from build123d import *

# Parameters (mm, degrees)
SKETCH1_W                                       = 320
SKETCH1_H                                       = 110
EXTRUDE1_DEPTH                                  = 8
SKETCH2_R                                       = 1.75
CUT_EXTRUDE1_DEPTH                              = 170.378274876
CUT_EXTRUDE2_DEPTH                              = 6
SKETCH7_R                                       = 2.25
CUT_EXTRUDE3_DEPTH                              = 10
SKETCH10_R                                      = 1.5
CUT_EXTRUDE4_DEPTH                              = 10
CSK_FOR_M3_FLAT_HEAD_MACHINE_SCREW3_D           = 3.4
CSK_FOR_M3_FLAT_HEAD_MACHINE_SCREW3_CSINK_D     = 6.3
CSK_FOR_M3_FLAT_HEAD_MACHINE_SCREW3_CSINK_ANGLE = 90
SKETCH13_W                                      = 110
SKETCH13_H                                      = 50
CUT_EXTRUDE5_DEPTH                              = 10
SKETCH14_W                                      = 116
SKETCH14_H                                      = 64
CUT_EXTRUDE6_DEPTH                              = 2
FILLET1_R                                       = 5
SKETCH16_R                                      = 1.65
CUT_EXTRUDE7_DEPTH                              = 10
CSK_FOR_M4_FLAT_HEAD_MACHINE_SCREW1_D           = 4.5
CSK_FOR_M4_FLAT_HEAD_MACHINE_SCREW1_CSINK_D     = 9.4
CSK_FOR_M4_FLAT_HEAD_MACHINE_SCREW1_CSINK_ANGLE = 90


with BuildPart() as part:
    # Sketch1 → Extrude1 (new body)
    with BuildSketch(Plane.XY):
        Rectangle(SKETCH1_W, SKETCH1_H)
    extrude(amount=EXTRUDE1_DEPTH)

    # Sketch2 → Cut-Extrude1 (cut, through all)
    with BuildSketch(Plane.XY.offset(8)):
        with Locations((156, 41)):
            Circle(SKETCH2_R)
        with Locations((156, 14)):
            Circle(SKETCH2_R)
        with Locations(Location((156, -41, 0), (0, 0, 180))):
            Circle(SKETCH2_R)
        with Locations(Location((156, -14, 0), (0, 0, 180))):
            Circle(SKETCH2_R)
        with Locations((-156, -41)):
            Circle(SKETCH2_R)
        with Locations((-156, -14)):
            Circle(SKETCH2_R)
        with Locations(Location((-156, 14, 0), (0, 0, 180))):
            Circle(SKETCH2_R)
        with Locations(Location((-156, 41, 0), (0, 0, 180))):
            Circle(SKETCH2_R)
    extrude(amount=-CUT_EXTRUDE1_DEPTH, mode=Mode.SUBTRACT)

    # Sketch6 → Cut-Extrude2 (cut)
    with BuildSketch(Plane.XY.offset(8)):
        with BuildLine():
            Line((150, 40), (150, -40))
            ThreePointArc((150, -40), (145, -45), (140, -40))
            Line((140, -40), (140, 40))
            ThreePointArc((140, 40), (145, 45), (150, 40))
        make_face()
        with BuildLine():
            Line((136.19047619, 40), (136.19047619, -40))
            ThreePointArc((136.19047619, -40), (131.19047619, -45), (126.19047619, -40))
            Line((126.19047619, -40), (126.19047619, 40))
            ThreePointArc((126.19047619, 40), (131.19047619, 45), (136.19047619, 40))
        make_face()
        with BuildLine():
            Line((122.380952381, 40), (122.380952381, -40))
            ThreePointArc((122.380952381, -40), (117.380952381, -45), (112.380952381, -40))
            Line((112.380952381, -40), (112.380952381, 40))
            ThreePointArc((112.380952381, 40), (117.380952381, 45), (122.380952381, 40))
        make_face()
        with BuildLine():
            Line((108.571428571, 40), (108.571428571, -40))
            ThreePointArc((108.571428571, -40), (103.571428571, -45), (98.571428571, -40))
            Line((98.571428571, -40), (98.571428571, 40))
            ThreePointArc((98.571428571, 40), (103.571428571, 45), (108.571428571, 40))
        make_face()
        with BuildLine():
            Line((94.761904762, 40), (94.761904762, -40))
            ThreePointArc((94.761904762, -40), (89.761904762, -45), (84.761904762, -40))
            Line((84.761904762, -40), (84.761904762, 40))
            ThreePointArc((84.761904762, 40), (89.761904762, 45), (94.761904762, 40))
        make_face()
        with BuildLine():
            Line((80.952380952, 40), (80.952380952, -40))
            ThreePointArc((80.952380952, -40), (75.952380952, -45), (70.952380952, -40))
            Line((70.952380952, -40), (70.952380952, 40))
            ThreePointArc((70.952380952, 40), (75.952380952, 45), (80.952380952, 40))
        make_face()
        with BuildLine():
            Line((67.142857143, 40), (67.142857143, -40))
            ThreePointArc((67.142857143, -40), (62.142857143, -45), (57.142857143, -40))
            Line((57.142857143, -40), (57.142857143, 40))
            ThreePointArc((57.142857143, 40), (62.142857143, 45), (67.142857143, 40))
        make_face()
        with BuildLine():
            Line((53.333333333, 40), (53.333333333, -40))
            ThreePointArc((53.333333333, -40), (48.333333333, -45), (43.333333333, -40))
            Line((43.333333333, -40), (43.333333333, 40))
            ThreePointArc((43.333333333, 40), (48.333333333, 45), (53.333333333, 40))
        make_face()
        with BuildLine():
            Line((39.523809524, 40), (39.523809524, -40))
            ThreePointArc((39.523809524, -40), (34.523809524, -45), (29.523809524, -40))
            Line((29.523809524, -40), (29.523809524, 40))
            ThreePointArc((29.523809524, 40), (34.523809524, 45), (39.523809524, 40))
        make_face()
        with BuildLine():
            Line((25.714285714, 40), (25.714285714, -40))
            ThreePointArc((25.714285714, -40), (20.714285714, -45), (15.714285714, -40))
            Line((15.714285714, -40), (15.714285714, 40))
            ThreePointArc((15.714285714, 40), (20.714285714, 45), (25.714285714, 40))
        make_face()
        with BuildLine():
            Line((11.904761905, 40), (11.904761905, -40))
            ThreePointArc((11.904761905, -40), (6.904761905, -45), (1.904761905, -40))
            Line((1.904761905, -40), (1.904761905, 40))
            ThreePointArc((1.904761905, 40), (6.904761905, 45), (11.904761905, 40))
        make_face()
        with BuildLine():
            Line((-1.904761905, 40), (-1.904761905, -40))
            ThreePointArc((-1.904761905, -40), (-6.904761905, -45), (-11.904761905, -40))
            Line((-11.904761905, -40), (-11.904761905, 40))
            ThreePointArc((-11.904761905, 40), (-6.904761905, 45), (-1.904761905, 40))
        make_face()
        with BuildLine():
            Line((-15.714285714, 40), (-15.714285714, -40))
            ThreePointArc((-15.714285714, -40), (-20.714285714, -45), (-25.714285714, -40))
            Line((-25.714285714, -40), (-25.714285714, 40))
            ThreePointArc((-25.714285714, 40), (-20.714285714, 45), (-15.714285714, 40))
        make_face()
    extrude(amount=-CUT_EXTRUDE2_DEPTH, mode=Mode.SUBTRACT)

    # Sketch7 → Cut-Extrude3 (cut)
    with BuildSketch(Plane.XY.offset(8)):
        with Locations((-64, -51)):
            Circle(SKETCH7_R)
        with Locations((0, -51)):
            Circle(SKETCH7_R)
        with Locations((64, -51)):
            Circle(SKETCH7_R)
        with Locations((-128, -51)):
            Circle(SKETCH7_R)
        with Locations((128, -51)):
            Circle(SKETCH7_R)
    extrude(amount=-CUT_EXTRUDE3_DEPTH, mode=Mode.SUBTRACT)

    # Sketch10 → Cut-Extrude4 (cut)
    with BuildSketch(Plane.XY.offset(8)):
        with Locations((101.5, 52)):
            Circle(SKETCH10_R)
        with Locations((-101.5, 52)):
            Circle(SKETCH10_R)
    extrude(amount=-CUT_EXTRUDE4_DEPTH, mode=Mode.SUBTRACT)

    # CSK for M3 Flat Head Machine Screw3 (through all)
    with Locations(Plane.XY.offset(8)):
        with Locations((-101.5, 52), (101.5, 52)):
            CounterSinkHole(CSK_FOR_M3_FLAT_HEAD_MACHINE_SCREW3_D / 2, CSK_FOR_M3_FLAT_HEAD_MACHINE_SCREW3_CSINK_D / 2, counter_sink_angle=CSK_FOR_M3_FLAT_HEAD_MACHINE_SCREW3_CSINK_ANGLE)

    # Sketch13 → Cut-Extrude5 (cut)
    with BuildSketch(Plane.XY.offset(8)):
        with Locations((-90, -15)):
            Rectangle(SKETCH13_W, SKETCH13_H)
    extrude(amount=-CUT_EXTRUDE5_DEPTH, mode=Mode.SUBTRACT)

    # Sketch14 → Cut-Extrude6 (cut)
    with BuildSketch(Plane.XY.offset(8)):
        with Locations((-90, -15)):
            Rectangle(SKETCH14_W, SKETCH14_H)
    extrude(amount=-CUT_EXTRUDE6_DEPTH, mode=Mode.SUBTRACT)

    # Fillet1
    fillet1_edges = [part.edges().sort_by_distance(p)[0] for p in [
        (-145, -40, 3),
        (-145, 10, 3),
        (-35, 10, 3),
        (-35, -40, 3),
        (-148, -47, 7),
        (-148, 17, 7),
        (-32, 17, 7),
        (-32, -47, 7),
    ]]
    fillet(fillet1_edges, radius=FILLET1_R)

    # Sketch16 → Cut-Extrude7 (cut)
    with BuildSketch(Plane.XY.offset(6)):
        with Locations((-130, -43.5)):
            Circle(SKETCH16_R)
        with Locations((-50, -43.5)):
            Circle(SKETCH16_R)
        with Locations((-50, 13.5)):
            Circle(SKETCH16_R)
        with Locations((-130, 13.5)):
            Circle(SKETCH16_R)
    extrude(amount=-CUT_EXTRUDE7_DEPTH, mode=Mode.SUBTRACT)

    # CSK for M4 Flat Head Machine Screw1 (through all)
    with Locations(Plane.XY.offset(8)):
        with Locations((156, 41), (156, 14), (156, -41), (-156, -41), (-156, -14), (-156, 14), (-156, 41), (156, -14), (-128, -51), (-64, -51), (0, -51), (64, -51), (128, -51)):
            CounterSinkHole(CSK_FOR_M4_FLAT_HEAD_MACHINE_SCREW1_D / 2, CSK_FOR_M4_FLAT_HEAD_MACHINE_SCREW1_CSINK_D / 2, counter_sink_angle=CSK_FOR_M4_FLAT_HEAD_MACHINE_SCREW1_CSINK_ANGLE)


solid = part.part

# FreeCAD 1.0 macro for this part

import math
import FreeCAD as App
import Part
import Sketcher

V = App.Vector
Q = App.Units.Quantity


def edges_at(feature, points):
    """Names of the edges that pass closest to the given points."""
    edges = feature.Shape.Edges
    near = lambda p: min(range(len(edges)), key=lambda i: edges[i].distToShape(Part.Vertex(*p))[0])
    return sorted({f"Edge{near(p) + 1}" for p in points})

doc = App.newDocument("Part")
body = doc.addObject("PartDesign::Body", "Body")

sketch1 = body.newObject("Sketcher::SketchObject", "Sketch")
sketch1.AttachmentSupport = (doc.getObject("XY_Plane"), [""])
sketch1.MapMode = "FlatFace"
sketch1.addGeometry([
    Part.LineSegment(V(-160, 55, 0), V(-160, -55, 0)),
    Part.LineSegment(V(-160, -55, 0), V(160, -55, 0)),
    Part.LineSegment(V(160, -55, 0), V(160, 55, 0)),
    Part.LineSegment(V(160, 55, 0), V(-160, 55, 0)),
], False)
sketch1.addConstraint([
    Sketcher.Constraint("Coincident", 0, 2, 1, 1),
    Sketcher.Constraint("Coincident", 1, 2, 2, 1),
    Sketcher.Constraint("Coincident", 2, 2, 3, 1),
    Sketcher.Constraint("Coincident", 3, 2, 0, 1),
    Sketcher.Constraint("Vertical", 0),
    Sketcher.Constraint("Horizontal", 1),
    Sketcher.Constraint("Vertical", 2),
    Sketcher.Constraint("Horizontal", 3),
    Sketcher.Constraint("Symmetric", 0, 2, 2, 2, -1, 1),
    Sketcher.Constraint("DistanceX", 1, 1, 1, 2, Q("320 mm")),
    Sketcher.Constraint("DistanceY", 0, 2, 0, 1, Q("110 mm")),
])
pad1 = body.newObject("PartDesign::Pad", "Pad")
pad1.Profile = sketch1
pad1.Length = 8

sketch2 = body.newObject("Sketcher::SketchObject", "Sketch001")
sketch2.AttachmentSupport = (doc.getObject("XY_Plane"), [""])
sketch2.MapMode = "FlatFace"
sketch2.AttachmentOffset = App.Placement(V(0, 0, 8), App.Rotation())
sketch2.addGeometry([
    Part.Circle(V(156, 41, 0), V(0, 0, 1), 1.8),
    Part.Circle(V(156, 14, 0), V(0, 0, 1), 1.8),
    Part.Circle(V(156, -41, 0), V(0, 0, 1), 1.8),
    Part.Circle(V(156, -14, 0), V(0, 0, 1), 1.8),
    Part.Circle(V(-156, -41, 0), V(0, 0, 1), 1.8),
    Part.Circle(V(-156, -14, 0), V(0, 0, 1), 1.8),
    Part.Circle(V(-156, 14, 0), V(0, 0, 1), 1.8),
    Part.Circle(V(-156, 41, 0), V(0, 0, 1), 1.8),
], False)
sketch2.addConstraint([
    Sketcher.Constraint("Equal", 0, 1),
    Sketcher.Constraint("Equal", 1, 2),
    Sketcher.Constraint("Equal", 2, 3),
    Sketcher.Constraint("Equal", 3, 4),
    Sketcher.Constraint("Equal", 4, 5),
    Sketcher.Constraint("Equal", 5, 6),
    Sketcher.Constraint("Equal", 6, 7),
    Sketcher.Constraint("Symmetric", 0, 3, 4, 3, -1, 1),
    Sketcher.Constraint("Symmetric", 1, 3, 5, 3, -1, 1),
    Sketcher.Constraint("Symmetric", 3, 3, 6, 3, -1, 1),
    Sketcher.Constraint("Symmetric", 2, 3, 7, 3, -1, 1),
    Sketcher.Constraint("Symmetric", 2, 3, 4, 3, -2),
    Sketcher.Constraint("Symmetric", 3, 3, 5, 3, -2),
    Sketcher.Constraint("Vertical", 0, 3, 1, 3),
    Sketcher.Constraint("Diameter", 0, Q("3.5 mm")),
    Sketcher.Constraint("DistanceX", -1, 1, 0, 3, Q("156 mm")),
    Sketcher.Constraint("DistanceY", -1, 1, 0, 3, Q("41 mm")),
    Sketcher.Constraint("DistanceY", -1, 1, 1, 3, Q("14 mm")),
])
pocket1 = body.newObject("PartDesign::Pocket", "Pocket")
pocket1.Profile = sketch2
pocket1.Type = "ThroughAll"

sketch3 = body.newObject("Sketcher::SketchObject", "Sketch002")
sketch3.AttachmentSupport = (doc.getObject("XY_Plane"), [""])
sketch3.MapMode = "FlatFace"
sketch3.AttachmentOffset = App.Placement(V(0, 0, 8), App.Rotation())
sketch3.addGeometry([
    Part.LineSegment(V(150, -40, 0), V(150, 40, 0)),
    Part.ArcOfCircle(Part.Circle(V(145, 40, 0), V(0, 0, 1), 5), math.radians(0), math.radians(180)),
    Part.LineSegment(V(140, 40, 0), V(140, -40, 0)),
    Part.ArcOfCircle(Part.Circle(V(145, -40, 0), V(0, 0, 1), 5), math.radians(180), math.radians(360)),
    Part.LineSegment(V(136, -40, 0), V(136, 40, 0)),
    Part.ArcOfCircle(Part.Circle(V(131, 40, 0), V(0, 0, 1), 5), math.radians(0), math.radians(180)),
    Part.LineSegment(V(126, 40, 0), V(126, -40, 0)),
    Part.ArcOfCircle(Part.Circle(V(131, -40, 0), V(0, 0, 1), 5), math.radians(180), math.radians(360)),
    Part.LineSegment(V(122, -40, 0), V(122, 40, 0)),
    Part.ArcOfCircle(Part.Circle(V(117, 40, 0), V(0, 0, 1), 5), math.radians(0), math.radians(180)),
    Part.LineSegment(V(112, 40, 0), V(112, -40, 0)),
    Part.ArcOfCircle(Part.Circle(V(117, -40, 0), V(0, 0, 1), 5), math.radians(180), math.radians(360)),
    Part.LineSegment(V(109, -40, 0), V(109, 40, 0)),
    Part.ArcOfCircle(Part.Circle(V(104, 40, 0), V(0, 0, 1), 5), math.radians(0), math.radians(180)),
    Part.LineSegment(V(99, 40, 0), V(99, -40, 0)),
    Part.ArcOfCircle(Part.Circle(V(104, -40, 0), V(0, 0, 1), 5), math.radians(180), math.radians(360)),
    Part.LineSegment(V(95, -40, 0), V(95, 40, 0)),
    Part.ArcOfCircle(Part.Circle(V(90, 40, 0), V(0, 0, 1), 5), math.radians(0), math.radians(180)),
    Part.LineSegment(V(85, 40, 0), V(85, -40, 0)),
    Part.ArcOfCircle(Part.Circle(V(90, -40, 0), V(0, 0, 1), 5), math.radians(180), math.radians(360)),
    Part.LineSegment(V(81, -40, 0), V(81, 40, 0)),
    Part.ArcOfCircle(Part.Circle(V(76, 40, 0), V(0, 0, 1), 5), math.radians(0), math.radians(180)),
    Part.LineSegment(V(71, 40, 0), V(71, -40, 0)),
    Part.ArcOfCircle(Part.Circle(V(76, -40, 0), V(0, 0, 1), 5), math.radians(180), math.radians(360)),
    Part.LineSegment(V(67, -40, 0), V(67, 40, 0)),
    Part.ArcOfCircle(Part.Circle(V(62, 40, 0), V(0, 0, 1), 5), math.radians(0), math.radians(180)),
    Part.LineSegment(V(57, 40, 0), V(57, -40, 0)),
    Part.ArcOfCircle(Part.Circle(V(62, -40, 0), V(0, 0, 1), 5), math.radians(180), math.radians(360)),
    Part.LineSegment(V(53, -40, 0), V(53, 40, 0)),
    Part.ArcOfCircle(Part.Circle(V(48, 40, 0), V(0, 0, 1), 5), math.radians(0), math.radians(180)),
    Part.LineSegment(V(43, 40, 0), V(43, -40, 0)),
    Part.ArcOfCircle(Part.Circle(V(48, -40, 0), V(0, 0, 1), 5), math.radians(180), math.radians(360)),
    Part.LineSegment(V(40, -40, 0), V(40, 40, 0)),
    Part.ArcOfCircle(Part.Circle(V(35, 40, 0), V(0, 0, 1), 5), math.radians(0), math.radians(180)),
    Part.LineSegment(V(30, 40, 0), V(30, -40, 0)),
    Part.ArcOfCircle(Part.Circle(V(35, -40, 0), V(0, 0, 1), 5), math.radians(180), math.radians(360)),
    Part.LineSegment(V(26, -40, 0), V(26, 40, 0)),
    Part.ArcOfCircle(Part.Circle(V(21, 40, 0), V(0, 0, 1), 5), math.radians(0), math.radians(180)),
    Part.LineSegment(V(16, 40, 0), V(16, -40, 0)),
    Part.ArcOfCircle(Part.Circle(V(21, -40, 0), V(0, 0, 1), 5), math.radians(180), math.radians(360)),
    Part.LineSegment(V(12, -40, 0), V(12, 40, 0)),
    Part.ArcOfCircle(Part.Circle(V(7, 40, 0), V(0, 0, 1), 5), math.radians(0), math.radians(180)),
    Part.LineSegment(V(2, 40, 0), V(2, -40, 0)),
    Part.ArcOfCircle(Part.Circle(V(7, -40, 0), V(0, 0, 1), 5), math.radians(180), math.radians(360)),
    Part.LineSegment(V(-2, -40, 0), V(-2, 40, 0)),
    Part.ArcOfCircle(Part.Circle(V(-7, 40, 0), V(0, 0, 1), 5), math.radians(0), math.radians(180)),
    Part.LineSegment(V(-12, 40, 0), V(-12, -40, 0)),
    Part.ArcOfCircle(Part.Circle(V(-7, -40, 0), V(0, 0, 1), 5), math.radians(180), math.radians(360)),
    Part.LineSegment(V(-16, -40, 0), V(-16, 40, 0)),
    Part.ArcOfCircle(Part.Circle(V(-21, 40, 0), V(0, 0, 1), 5), math.radians(0), math.radians(180)),
    Part.LineSegment(V(-26, 40, 0), V(-26, -40, 0)),
    Part.ArcOfCircle(Part.Circle(V(-21, -40, 0), V(0, 0, 1), 5), math.radians(180), math.radians(360)),
], False)
sketch3.addConstraint([
    Sketcher.Constraint("Tangent", 0, 2, 1, 1),
    Sketcher.Constraint("Tangent", 1, 2, 2, 1),
    Sketcher.Constraint("Tangent", 2, 2, 3, 1),
    Sketcher.Constraint("Tangent", 3, 2, 0, 1),
    Sketcher.Constraint("Tangent", 4, 2, 5, 1),
    Sketcher.Constraint("Tangent", 5, 2, 6, 1),
    Sketcher.Constraint("Tangent", 6, 2, 7, 1),
    Sketcher.Constraint("Tangent", 7, 2, 4, 1),
    Sketcher.Constraint("Tangent", 8, 2, 9, 1),
    Sketcher.Constraint("Tangent", 9, 2, 10, 1),
    Sketcher.Constraint("Tangent", 10, 2, 11, 1),
    Sketcher.Constraint("Tangent", 11, 2, 8, 1),
    Sketcher.Constraint("Tangent", 12, 2, 13, 1),
    Sketcher.Constraint("Tangent", 13, 2, 14, 1),
    Sketcher.Constraint("Tangent", 14, 2, 15, 1),
    Sketcher.Constraint("Tangent", 15, 2, 12, 1),
    Sketcher.Constraint("Tangent", 16, 2, 17, 1),
    Sketcher.Constraint("Tangent", 17, 2, 18, 1),
    Sketcher.Constraint("Tangent", 18, 2, 19, 1),
    Sketcher.Constraint("Tangent", 19, 2, 16, 1),
    Sketcher.Constraint("Tangent", 20, 2, 21, 1),
    Sketcher.Constraint("Tangent", 21, 2, 22, 1),
    Sketcher.Constraint("Tangent", 22, 2, 23, 1),
    Sketcher.Constraint("Tangent", 23, 2, 20, 1),
    Sketcher.Constraint("Tangent", 24, 2, 25, 1),
    Sketcher.Constraint("Tangent", 25, 2, 26, 1),
    Sketcher.Constraint("Tangent", 26, 2, 27, 1),
    Sketcher.Constraint("Tangent", 27, 2, 24, 1),
    Sketcher.Constraint("Tangent", 28, 2, 29, 1),
    Sketcher.Constraint("Tangent", 29, 2, 30, 1),
    Sketcher.Constraint("Tangent", 30, 2, 31, 1),
    Sketcher.Constraint("Tangent", 31, 2, 28, 1),
    Sketcher.Constraint("Tangent", 32, 2, 33, 1),
    Sketcher.Constraint("Tangent", 33, 2, 34, 1),
    Sketcher.Constraint("Tangent", 34, 2, 35, 1),
    Sketcher.Constraint("Tangent", 35, 2, 32, 1),
    Sketcher.Constraint("Tangent", 36, 2, 37, 1),
    Sketcher.Constraint("Tangent", 37, 2, 38, 1),
    Sketcher.Constraint("Tangent", 38, 2, 39, 1),
    Sketcher.Constraint("Tangent", 39, 2, 36, 1),
    Sketcher.Constraint("Tangent", 40, 2, 41, 1),
    Sketcher.Constraint("Tangent", 41, 2, 42, 1),
    Sketcher.Constraint("Tangent", 42, 2, 43, 1),
    Sketcher.Constraint("Tangent", 43, 2, 40, 1),
    Sketcher.Constraint("Tangent", 44, 2, 45, 1),
    Sketcher.Constraint("Tangent", 45, 2, 46, 1),
    Sketcher.Constraint("Tangent", 46, 2, 47, 1),
    Sketcher.Constraint("Tangent", 47, 2, 44, 1),
    Sketcher.Constraint("Tangent", 48, 2, 49, 1),
    Sketcher.Constraint("Tangent", 49, 2, 50, 1),
    Sketcher.Constraint("Tangent", 50, 2, 51, 1),
    Sketcher.Constraint("Tangent", 51, 2, 48, 1),
    Sketcher.Constraint("Vertical", 0),
    Sketcher.Constraint("Vertical", 2),
    Sketcher.Constraint("Vertical", 4),
    Sketcher.Constraint("Vertical", 6),
    Sketcher.Constraint("Vertical", 8),
    Sketcher.Constraint("Vertical", 10),
    Sketcher.Constraint("Vertical", 12),
    Sketcher.Constraint("Vertical", 14),
    Sketcher.Constraint("Vertical", 16),
    Sketcher.Constraint("Vertical", 18),
    Sketcher.Constraint("Vertical", 20),
    Sketcher.Constraint("Vertical", 22),
    Sketcher.Constraint("Vertical", 24),
    Sketcher.Constraint("Vertical", 26),
    Sketcher.Constraint("Vertical", 28),
    Sketcher.Constraint("Vertical", 30),
    Sketcher.Constraint("Vertical", 32),
    Sketcher.Constraint("Vertical", 34),
    Sketcher.Constraint("Vertical", 36),
    Sketcher.Constraint("Vertical", 38),
    Sketcher.Constraint("Vertical", 40),
    Sketcher.Constraint("Vertical", 42),
    Sketcher.Constraint("Vertical", 44),
    Sketcher.Constraint("Vertical", 46),
    Sketcher.Constraint("Vertical", 48),
    Sketcher.Constraint("Vertical", 50),
    Sketcher.Constraint("Equal", 3, 5),
    Sketcher.Constraint("Equal", 7, 9),
    Sketcher.Constraint("Equal", 11, 13),
    Sketcher.Constraint("Equal", 15, 17),
    Sketcher.Constraint("Equal", 19, 21),
    Sketcher.Constraint("Equal", 23, 25),
    Sketcher.Constraint("Equal", 27, 29),
    Sketcher.Constraint("Equal", 31, 33),
    Sketcher.Constraint("Equal", 35, 37),
    Sketcher.Constraint("Equal", 39, 41),
    Sketcher.Constraint("Equal", 43, 45),
    Sketcher.Constraint("Equal", 47, 49),
    Sketcher.Constraint("Symmetric", 43, 3, 45, 3, -1, 1),
    Sketcher.Constraint("Symmetric", 39, 3, 49, 3, -1, 1),
    Sketcher.Constraint("Horizontal", 1, 3, 5, 3),
    Sketcher.Constraint("Horizontal", 3, 3, 7, 3),
    Sketcher.Constraint("Horizontal", 5, 3, 9, 3),
    Sketcher.Constraint("Horizontal", 7, 3, 11, 3),
    Sketcher.Constraint("Horizontal", 9, 3, 13, 3),
    Sketcher.Constraint("Horizontal", 11, 3, 15, 3),
    Sketcher.Constraint("Horizontal", 13, 3, 17, 3),
    Sketcher.Constraint("Horizontal", 15, 3, 19, 3),
    Sketcher.Constraint("Horizontal", 17, 3, 21, 3),
    Sketcher.Constraint("Horizontal", 19, 3, 23, 3),
    Sketcher.Constraint("Horizontal", 21, 3, 25, 3),
    Sketcher.Constraint("Horizontal", 23, 3, 27, 3),
    Sketcher.Constraint("Horizontal", 25, 3, 29, 3),
    Sketcher.Constraint("Horizontal", 27, 3, 31, 3),
    Sketcher.Constraint("Horizontal", 29, 3, 33, 3),
    Sketcher.Constraint("Horizontal", 31, 3, 35, 3),
    Sketcher.Constraint("Horizontal", 33, 3, 37, 3),
    Sketcher.Constraint("Horizontal", 35, 3, 39, 3),
    Sketcher.Constraint("Horizontal", 37, 3, 41, 3),
    Sketcher.Constraint("Horizontal", 39, 3, 43, 3),
    Sketcher.Constraint("Horizontal", 41, 3, 45, 3),
    Sketcher.Constraint("Horizontal", 43, 3, 47, 3),
    Sketcher.Constraint("Horizontal", 47, 3, 51, 3),
    Sketcher.Constraint("Radius", 1, Q("5 mm")),
    Sketcher.Constraint("DistanceY", 0, 1, 0, 2, Q("80 mm")),
    Sketcher.Constraint("DistanceX", -1, 1, 1, 3, Q("145 mm")),
    Sketcher.Constraint("DistanceX", -1, 1, 13, 3, Q("103.571429 mm")),
    Sketcher.Constraint("DistanceX", -1, 1, 21, 3, Q("75.952381 mm")),
    Sketcher.Constraint("DistanceX", -1, 1, 33, 3, Q("34.52381 mm")),
    Sketcher.Constraint("DistanceX", -1, 1, 41, 3, Q("6.904762 mm")),
    Sketcher.Constraint("DistanceX", -1, 1, 5, 3, Q("131.190476 mm")),
    Sketcher.Constraint("DistanceX", -1, 1, 9, 3, Q("117.380952 mm")),
    Sketcher.Constraint("DistanceX", -1, 1, 17, 3, Q("89.761905 mm")),
    Sketcher.Constraint("DistanceX", -1, 1, 25, 3, Q("62.142857 mm")),
    Sketcher.Constraint("DistanceX", -1, 1, 29, 3, Q("48.333333 mm")),
    Sketcher.Constraint("DistanceX", -1, 1, 37, 3, Q("20.714286 mm")),
])
pocket2 = body.newObject("PartDesign::Pocket", "Pocket001")
pocket2.Profile = sketch3
pocket2.Length = 6

sketch4 = body.newObject("Sketcher::SketchObject", "Sketch003")
sketch4.AttachmentSupport = (doc.getObject("XY_Plane"), [""])
sketch4.MapMode = "FlatFace"
sketch4.AttachmentOffset = App.Placement(V(0, 0, 8), App.Rotation())
sketch4.addGeometry([
    Part.Circle(V(-64, -51, 0), V(0, 0, 1), 2.2),
    Part.Circle(V(0, -51, 0), V(0, 0, 1), 2.2),
    Part.Circle(V(64, -51, 0), V(0, 0, 1), 2.2),
    Part.Circle(V(-128, -51, 0), V(0, 0, 1), 2.2),
    Part.Circle(V(128, -51, 0), V(0, 0, 1), 2.2),
], False)
sketch4.addConstraint([
    Sketcher.Constraint("Equal", 0, 1),
    Sketcher.Constraint("Equal", 1, 2),
    Sketcher.Constraint("Equal", 2, 3),
    Sketcher.Constraint("Equal", 3, 4),
    Sketcher.Constraint("Symmetric", 0, 3, 2, 3, -2),
    Sketcher.Constraint("Symmetric", 3, 3, 4, 3, -2),
    Sketcher.Constraint("PointOnObject", 1, 3, -2),
    Sketcher.Constraint("Horizontal", 0, 3, 1, 3),
    Sketcher.Constraint("Horizontal", 2, 3, 3, 3),
    Sketcher.Constraint("Diameter", 0, Q("4.5 mm")),
    Sketcher.Constraint("DistanceX", 0, 3, -1, 1, Q("64 mm")),
    Sketcher.Constraint("DistanceY", 0, 3, -1, 1, Q("51 mm")),
    Sketcher.Constraint("DistanceX", 3, 3, -1, 1, Q("128 mm")),
])
pocket3 = body.newObject("PartDesign::Pocket", "Pocket002")
pocket3.Profile = sketch4
pocket3.Length = 10

sketch5 = body.newObject("Sketcher::SketchObject", "Sketch004")
sketch5.AttachmentSupport = (doc.getObject("XY_Plane"), [""])
sketch5.MapMode = "FlatFace"
sketch5.AttachmentOffset = App.Placement(V(0, 0, 8), App.Rotation())
sketch5.addGeometry([
    Part.Circle(V(101.5, 52, 0), V(0, 0, 1), 1.5),
    Part.Circle(V(-101.5, 52, 0), V(0, 0, 1), 1.5),
], False)
sketch5.addConstraint([
    Sketcher.Constraint("Equal", 0, 1),
    Sketcher.Constraint("Symmetric", 0, 3, 1, 3, -2),
    Sketcher.Constraint("Diameter", 0, Q("3 mm")),
    Sketcher.Constraint("DistanceY", -1, 1, 0, 3, Q("52 mm")),
    Sketcher.Constraint("DistanceX", 1, 3, 0, 3, Q("203 mm")),
])
pocket4 = body.newObject("PartDesign::Pocket", "Pocket003")
pocket4.Profile = sketch5
pocket4.Length = 10

sketch6 = body.newObject("Sketcher::SketchObject", "Sketch005")
sketch6.AttachmentSupport = (doc.getObject("XY_Plane"), [""])
sketch6.MapMode = "FlatFace"
sketch6.AttachmentOffset = App.Placement(V(0, 0, 8), App.Rotation())
sketch6.addGeometry([
    Part.Circle(V(-101.5, 52, 0), V(0, 0, 1), 1.7),
    Part.Circle(V(101.5, 52, 0), V(0, 0, 1), 1.7),
], False)
sketch6.addConstraint([
    Sketcher.Constraint("Equal", 0, 1),
    Sketcher.Constraint("Symmetric", 0, 3, 1, 3, -2),
    Sketcher.Constraint("Diameter", 0, Q("3.4 mm")),
    Sketcher.Constraint("DistanceY", -1, 1, 0, 3, Q("52 mm")),
    Sketcher.Constraint("DistanceX", 0, 3, 1, 3, Q("203 mm")),
])
doc.recompute()
hole = body.newObject("PartDesign::Hole", "Hole")
hole.Profile = sketch6
hole.ThreadType = "None"
hole.Diameter = 3.4
hole.DepthType = "ThroughAll"
hole.HoleCutType = "Countersink"
hole.HoleCutDiameter = 6.3
hole.HoleCutCountersinkAngle = 90

sketch7 = body.newObject("Sketcher::SketchObject", "Sketch006")
sketch7.AttachmentSupport = (doc.getObject("XY_Plane"), [""])
sketch7.MapMode = "FlatFace"
sketch7.AttachmentOffset = App.Placement(V(0, 0, 8), App.Rotation())
sketch7.addGeometry([
    Part.LineSegment(V(-145, 10, 0), V(-145, -40, 0)),
    Part.LineSegment(V(-145, -40, 0), V(-35, -40, 0)),
    Part.LineSegment(V(-35, -40, 0), V(-35, 10, 0)),
    Part.LineSegment(V(-35, 10, 0), V(-145, 10, 0)),
], False)
sketch7.addConstraint([
    Sketcher.Constraint("Coincident", 0, 2, 1, 1),
    Sketcher.Constraint("Coincident", 1, 2, 2, 1),
    Sketcher.Constraint("Coincident", 2, 2, 3, 1),
    Sketcher.Constraint("Coincident", 3, 2, 0, 1),
    Sketcher.Constraint("Vertical", 0),
    Sketcher.Constraint("Horizontal", 1),
    Sketcher.Constraint("Vertical", 2),
    Sketcher.Constraint("Horizontal", 3),
    Sketcher.Constraint("DistanceX", 1, 1, 1, 2, Q("110 mm")),
    Sketcher.Constraint("DistanceY", 0, 2, 0, 1, Q("50 mm")),
    Sketcher.Constraint("DistanceX", 0, 2, -1, 1, Q("145 mm")),
    Sketcher.Constraint("DistanceY", 0, 2, -1, 1, Q("40 mm")),
])
pocket5 = body.newObject("PartDesign::Pocket", "Pocket004")
pocket5.Profile = sketch7
pocket5.Length = 10

sketch8 = body.newObject("Sketcher::SketchObject", "Sketch007")
sketch8.AttachmentSupport = (doc.getObject("XY_Plane"), [""])
sketch8.MapMode = "FlatFace"
sketch8.AttachmentOffset = App.Placement(V(0, 0, 8), App.Rotation())
sketch8.addGeometry([
    Part.LineSegment(V(-148, 17, 0), V(-148, -47, 0)),
    Part.LineSegment(V(-148, -47, 0), V(-32, -47, 0)),
    Part.LineSegment(V(-32, -47, 0), V(-32, 17, 0)),
    Part.LineSegment(V(-32, 17, 0), V(-148, 17, 0)),
], False)
sketch8.addConstraint([
    Sketcher.Constraint("Coincident", 0, 2, 1, 1),
    Sketcher.Constraint("Coincident", 1, 2, 2, 1),
    Sketcher.Constraint("Coincident", 2, 2, 3, 1),
    Sketcher.Constraint("Coincident", 3, 2, 0, 1),
    Sketcher.Constraint("Vertical", 0),
    Sketcher.Constraint("Horizontal", 1),
    Sketcher.Constraint("Vertical", 2),
    Sketcher.Constraint("Horizontal", 3),
    Sketcher.Constraint("DistanceX", 1, 1, 1, 2, Q("116 mm")),
    Sketcher.Constraint("DistanceY", 0, 2, 0, 1, Q("64 mm")),
    Sketcher.Constraint("DistanceX", 0, 2, -1, 1, Q("148 mm")),
    Sketcher.Constraint("DistanceY", 0, 2, -1, 1, Q("47 mm")),
])
pocket6 = body.newObject("PartDesign::Pocket", "Pocket005")
pocket6.Profile = sketch8
pocket6.Length = 2
doc.recompute()

fillet = body.newObject("PartDesign::Fillet", "Fillet")
fillet.Base = (pocket6, edges_at(pocket6, [
    (-145, -40, 3),
    (-145, 10, 3),
    (-35, 10, 3),
    (-35, -40, 3),
    (-148, -47, 7),
    (-148, 17, 7),
    (-32, 17, 7),
    (-32, -47, 7),
]))
fillet.Radius = 5

sketch9 = body.newObject("Sketcher::SketchObject", "Sketch008")
sketch9.AttachmentSupport = (doc.getObject("XY_Plane"), [""])
sketch9.MapMode = "FlatFace"
sketch9.AttachmentOffset = App.Placement(V(0, 0, 6), App.Rotation())
sketch9.addGeometry([
    Part.Circle(V(-130, -43.5, 0), V(0, 0, 1), 1.6),
    Part.Circle(V(-50, -43.5, 0), V(0, 0, 1), 1.6),
    Part.Circle(V(-50, 13.5, 0), V(0, 0, 1), 1.6),
    Part.Circle(V(-130, 13.5, 0), V(0, 0, 1), 1.6),
], False)
sketch9.addConstraint([
    Sketcher.Constraint("Equal", 0, 1),
    Sketcher.Constraint("Equal", 1, 2),
    Sketcher.Constraint("Equal", 2, 3),
    Sketcher.Constraint("Horizontal", 0, 3, 1, 3),
    Sketcher.Constraint("Horizontal", 2, 3, 3, 3),
    Sketcher.Constraint("Vertical", 1, 3, 2, 3),
    Sketcher.Constraint("Vertical", 0, 3, 3, 3),
    Sketcher.Constraint("Diameter", 0, Q("3.3 mm")),
    Sketcher.Constraint("DistanceX", 0, 3, -1, 1, Q("130 mm")),
    Sketcher.Constraint("DistanceX", 1, 3, -1, 1, Q("50 mm")),
    Sketcher.Constraint("DistanceY", 1, 3, 2, 3, Q("57 mm")),
    Sketcher.Constraint("DistanceY", 0, 3, -1, 1, Q("43.5 mm")),
])
pocket7 = body.newObject("PartDesign::Pocket", "Pocket006")
pocket7.Profile = sketch9
pocket7.Length = 10

sketch10 = body.newObject("Sketcher::SketchObject", "Sketch009")
sketch10.AttachmentSupport = (doc.getObject("XY_Plane"), [""])
sketch10.MapMode = "FlatFace"
sketch10.AttachmentOffset = App.Placement(V(0, 0, 8), App.Rotation())
sketch10.addGeometry([
    Part.Circle(V(156, 41, 0), V(0, 0, 1), 2.2),
    Part.Circle(V(156, 14, 0), V(0, 0, 1), 2.2),
    Part.Circle(V(156, -41, 0), V(0, 0, 1), 2.2),
    Part.Circle(V(-156, -41, 0), V(0, 0, 1), 2.2),
    Part.Circle(V(-156, -14, 0), V(0, 0, 1), 2.2),
    Part.Circle(V(-156, 14, 0), V(0, 0, 1), 2.2),
    Part.Circle(V(-156, 41, 0), V(0, 0, 1), 2.2),
    Part.Circle(V(156, -14, 0), V(0, 0, 1), 2.2),
    Part.Circle(V(-128, -51, 0), V(0, 0, 1), 2.2),
    Part.Circle(V(-64, -51, 0), V(0, 0, 1), 2.2),
    Part.Circle(V(0, -51, 0), V(0, 0, 1), 2.2),
    Part.Circle(V(64, -51, 0), V(0, 0, 1), 2.2),
    Part.Circle(V(128, -51, 0), V(0, 0, 1), 2.2),
], False)
sketch10.addConstraint([
    Sketcher.Constraint("Equal", 0, 1),
    Sketcher.Constraint("Equal", 1, 2),
    Sketcher.Constraint("Equal", 2, 3),
    Sketcher.Constraint("Equal", 3, 4),
    Sketcher.Constraint("Equal", 4, 5),
    Sketcher.Constraint("Equal", 5, 6),
    Sketcher.Constraint("Equal", 6, 7),
    Sketcher.Constraint("Equal", 7, 8),
    Sketcher.Constraint("Equal", 8, 9),
    Sketcher.Constraint("Equal", 9, 10),
    Sketcher.Constraint("Equal", 10, 11),
    Sketcher.Constraint("Equal", 11, 12),
    Sketcher.Constraint("Symmetric", 0, 3, 3, 3, -1, 1),
    Sketcher.Constraint("Symmetric", 1, 3, 4, 3, -1, 1),
    Sketcher.Constraint("Symmetric", 2, 3, 6, 3, -1, 1),
    Sketcher.Constraint("Symmetric", 5, 3, 7, 3, -1, 1),
    Sketcher.Constraint("Symmetric", 2, 3, 3, 3, -2),
    Sketcher.Constraint("Symmetric", 1, 3, 5, 3, -2),
    Sketcher.Constraint("Symmetric", 9, 3, 11, 3, -2),
    Sketcher.Constraint("Symmetric", 8, 3, 12, 3, -2),
    Sketcher.Constraint("PointOnObject", 10, 3, -2),
    Sketcher.Constraint("Horizontal", 8, 3, 9, 3),
    Sketcher.Constraint("Horizontal", 9, 3, 10, 3),
    Sketcher.Constraint("Vertical", 0, 3, 1, 3),
    Sketcher.Constraint("Diameter", 0, Q("4.5 mm")),
    Sketcher.Constraint("DistanceX", -1, 1, 0, 3, Q("156 mm")),
    Sketcher.Constraint("DistanceY", -1, 1, 0, 3, Q("41 mm")),
    Sketcher.Constraint("DistanceY", -1, 1, 1, 3, Q("14 mm")),
    Sketcher.Constraint("DistanceX", 8, 3, -1, 1, Q("128 mm")),
    Sketcher.Constraint("DistanceY", 8, 3, -1, 1, Q("51 mm")),
    Sketcher.Constraint("DistanceX", 9, 3, -1, 1, Q("64 mm")),
])
doc.recompute()
hole2 = body.newObject("PartDesign::Hole", "Hole001")
hole2.Profile = sketch10
hole2.ThreadType = "None"
hole2.Diameter = 4.5
hole2.DepthType = "ThroughAll"
hole2.HoleCutType = "Countersink"
hole2.HoleCutDiameter = 9.4
hole2.HoleCutCountersinkAngle = 90

doc.recompute()
